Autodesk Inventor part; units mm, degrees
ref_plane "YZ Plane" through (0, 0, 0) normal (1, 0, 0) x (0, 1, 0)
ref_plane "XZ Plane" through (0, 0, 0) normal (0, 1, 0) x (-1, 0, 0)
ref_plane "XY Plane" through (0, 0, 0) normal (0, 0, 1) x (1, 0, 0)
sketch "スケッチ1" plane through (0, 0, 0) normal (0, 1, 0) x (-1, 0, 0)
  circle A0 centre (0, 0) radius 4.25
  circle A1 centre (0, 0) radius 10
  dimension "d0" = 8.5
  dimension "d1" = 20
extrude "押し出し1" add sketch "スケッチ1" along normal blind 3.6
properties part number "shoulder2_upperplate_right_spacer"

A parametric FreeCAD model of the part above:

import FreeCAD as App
import Part
import Sketcher

V = App.Vector
Q = App.Units.Quantity

doc = App.newDocument("Part")
body = doc.addObject("PartDesign::Body", "Body")

# Sketch on XZ plane
sketch1 = body.newObject("Sketcher::SketchObject", "Sketch")
sketch1.AttachmentSupport = (doc.getObject("XZ_Plane"), [""])
sketch1.MapMode = "FlatFace"
sketch1.addGeometry([
    Part.Circle(V(0, 0, 0), V(0, 0, 1), 10),
    Part.Circle(V(0, 0, 0), V(0, 0, 1), 4.2),
], False)
sketch1.addConstraint([
    Sketcher.Constraint("Coincident", 0, 3, -1, 1),
    Sketcher.Constraint("Coincident", 1, 3, -1, 1),
    Sketcher.Constraint("Diameter", 0, Q("20 mm")),
    Sketcher.Constraint("Diameter", 1, Q("8.5 mm")),
])
pad1 = body.newObject("PartDesign::Pad", "Pad")
pad1.Profile = sketch1
pad1.Length = 3.6
pad1.Reversed = True

doc.recompute()
